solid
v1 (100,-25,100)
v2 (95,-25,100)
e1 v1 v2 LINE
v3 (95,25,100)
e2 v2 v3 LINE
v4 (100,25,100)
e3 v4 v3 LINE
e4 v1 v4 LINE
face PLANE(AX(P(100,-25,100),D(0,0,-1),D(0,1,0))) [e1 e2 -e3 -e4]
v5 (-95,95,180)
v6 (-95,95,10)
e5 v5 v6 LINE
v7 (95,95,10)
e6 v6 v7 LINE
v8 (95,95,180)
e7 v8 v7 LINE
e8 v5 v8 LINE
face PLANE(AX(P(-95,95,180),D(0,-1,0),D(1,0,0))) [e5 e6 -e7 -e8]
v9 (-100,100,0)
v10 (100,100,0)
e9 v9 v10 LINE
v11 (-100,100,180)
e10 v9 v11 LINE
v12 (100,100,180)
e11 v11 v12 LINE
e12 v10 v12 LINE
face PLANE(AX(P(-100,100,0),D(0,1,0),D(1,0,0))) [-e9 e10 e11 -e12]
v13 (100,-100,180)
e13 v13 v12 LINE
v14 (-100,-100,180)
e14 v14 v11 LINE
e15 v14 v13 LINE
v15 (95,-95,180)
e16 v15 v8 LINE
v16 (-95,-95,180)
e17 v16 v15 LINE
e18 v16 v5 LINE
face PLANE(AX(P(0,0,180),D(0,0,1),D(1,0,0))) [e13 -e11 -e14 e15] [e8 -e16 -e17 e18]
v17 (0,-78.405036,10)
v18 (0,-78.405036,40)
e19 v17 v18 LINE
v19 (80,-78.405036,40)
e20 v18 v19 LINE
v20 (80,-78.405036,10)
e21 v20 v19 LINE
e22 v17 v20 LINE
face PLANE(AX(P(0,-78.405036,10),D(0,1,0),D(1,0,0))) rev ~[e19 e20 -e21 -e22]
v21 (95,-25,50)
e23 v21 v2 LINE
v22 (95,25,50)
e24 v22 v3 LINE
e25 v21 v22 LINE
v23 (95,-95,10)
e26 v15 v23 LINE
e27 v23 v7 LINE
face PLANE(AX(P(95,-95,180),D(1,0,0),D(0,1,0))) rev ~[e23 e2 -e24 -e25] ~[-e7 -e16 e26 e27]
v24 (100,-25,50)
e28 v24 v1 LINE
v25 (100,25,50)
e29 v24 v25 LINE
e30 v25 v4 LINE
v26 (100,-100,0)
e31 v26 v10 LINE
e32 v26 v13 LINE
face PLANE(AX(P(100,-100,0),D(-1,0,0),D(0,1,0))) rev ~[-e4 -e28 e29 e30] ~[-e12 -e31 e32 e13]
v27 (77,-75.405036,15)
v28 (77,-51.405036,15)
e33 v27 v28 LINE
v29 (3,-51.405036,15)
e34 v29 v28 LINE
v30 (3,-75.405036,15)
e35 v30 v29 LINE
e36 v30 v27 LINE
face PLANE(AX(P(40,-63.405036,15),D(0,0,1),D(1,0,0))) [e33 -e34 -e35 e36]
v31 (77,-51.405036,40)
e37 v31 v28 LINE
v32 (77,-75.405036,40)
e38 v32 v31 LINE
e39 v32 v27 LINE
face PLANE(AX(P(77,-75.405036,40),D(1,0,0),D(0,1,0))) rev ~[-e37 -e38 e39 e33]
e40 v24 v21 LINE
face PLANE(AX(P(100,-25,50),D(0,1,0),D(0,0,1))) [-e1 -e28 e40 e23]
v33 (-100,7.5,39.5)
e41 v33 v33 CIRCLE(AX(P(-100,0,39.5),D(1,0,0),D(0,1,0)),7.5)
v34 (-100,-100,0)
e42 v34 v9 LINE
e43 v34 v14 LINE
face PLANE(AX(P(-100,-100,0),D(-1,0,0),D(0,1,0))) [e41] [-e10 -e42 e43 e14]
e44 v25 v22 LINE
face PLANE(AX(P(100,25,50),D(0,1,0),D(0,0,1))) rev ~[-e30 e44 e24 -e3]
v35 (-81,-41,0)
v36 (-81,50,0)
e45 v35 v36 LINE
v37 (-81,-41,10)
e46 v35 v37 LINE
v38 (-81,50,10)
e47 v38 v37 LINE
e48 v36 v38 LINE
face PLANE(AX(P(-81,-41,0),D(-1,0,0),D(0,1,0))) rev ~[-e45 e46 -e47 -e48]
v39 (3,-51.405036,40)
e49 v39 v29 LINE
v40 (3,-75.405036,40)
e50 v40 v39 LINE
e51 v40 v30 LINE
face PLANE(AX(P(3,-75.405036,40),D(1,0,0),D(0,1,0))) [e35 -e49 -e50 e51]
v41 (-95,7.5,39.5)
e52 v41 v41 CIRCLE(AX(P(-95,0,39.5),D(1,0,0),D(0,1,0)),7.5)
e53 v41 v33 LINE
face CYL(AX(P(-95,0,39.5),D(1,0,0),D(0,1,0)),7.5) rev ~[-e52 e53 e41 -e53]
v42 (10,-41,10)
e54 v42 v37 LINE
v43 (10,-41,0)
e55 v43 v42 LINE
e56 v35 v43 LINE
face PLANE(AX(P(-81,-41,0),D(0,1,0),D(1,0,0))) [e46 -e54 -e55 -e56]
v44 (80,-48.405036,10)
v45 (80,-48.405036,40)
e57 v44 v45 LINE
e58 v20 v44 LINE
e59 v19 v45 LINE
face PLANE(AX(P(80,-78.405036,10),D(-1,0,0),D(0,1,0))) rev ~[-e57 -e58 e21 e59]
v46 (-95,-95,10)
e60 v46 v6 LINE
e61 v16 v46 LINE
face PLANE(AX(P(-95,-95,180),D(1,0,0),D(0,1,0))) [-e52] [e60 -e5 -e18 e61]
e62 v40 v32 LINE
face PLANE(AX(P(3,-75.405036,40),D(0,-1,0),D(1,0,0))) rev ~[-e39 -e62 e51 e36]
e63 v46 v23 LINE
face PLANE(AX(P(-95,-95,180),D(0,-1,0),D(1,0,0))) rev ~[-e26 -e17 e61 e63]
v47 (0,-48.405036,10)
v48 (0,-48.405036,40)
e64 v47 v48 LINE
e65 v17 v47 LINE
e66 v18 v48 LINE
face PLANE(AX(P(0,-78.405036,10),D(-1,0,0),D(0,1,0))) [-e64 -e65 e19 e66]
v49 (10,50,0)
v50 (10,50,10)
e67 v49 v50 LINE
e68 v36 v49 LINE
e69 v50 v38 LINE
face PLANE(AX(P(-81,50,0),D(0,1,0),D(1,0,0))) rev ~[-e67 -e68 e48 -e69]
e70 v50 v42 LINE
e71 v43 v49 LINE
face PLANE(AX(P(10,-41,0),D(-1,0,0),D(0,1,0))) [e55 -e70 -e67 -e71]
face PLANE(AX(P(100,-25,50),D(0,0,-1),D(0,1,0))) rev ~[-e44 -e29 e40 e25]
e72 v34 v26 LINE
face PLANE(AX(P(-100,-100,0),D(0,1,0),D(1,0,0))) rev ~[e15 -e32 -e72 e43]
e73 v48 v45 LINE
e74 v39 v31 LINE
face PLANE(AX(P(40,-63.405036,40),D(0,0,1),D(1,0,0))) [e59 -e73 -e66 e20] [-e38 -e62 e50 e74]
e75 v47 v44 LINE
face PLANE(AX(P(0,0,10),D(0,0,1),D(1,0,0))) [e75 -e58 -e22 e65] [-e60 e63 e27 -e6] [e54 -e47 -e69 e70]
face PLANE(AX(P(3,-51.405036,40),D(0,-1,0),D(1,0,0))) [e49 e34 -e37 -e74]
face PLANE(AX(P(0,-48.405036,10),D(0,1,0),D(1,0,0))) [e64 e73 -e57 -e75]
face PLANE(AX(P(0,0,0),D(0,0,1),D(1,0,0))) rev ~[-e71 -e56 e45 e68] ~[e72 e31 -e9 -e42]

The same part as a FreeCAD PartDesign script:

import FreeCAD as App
import Part
import Sketcher

V = App.Vector


def add_polygon(sketch, points):
    """Adds a closed chain of lines whose ends are joined by coincident constraints."""
    first, n = sketch.GeometryCount, len(points)
    for a, b in zip(points, points[1:] + points[:1]):
        sketch.addGeometry(Part.LineSegment(App.Vector(*a, 0), App.Vector(*b, 0)), False)
    for i in range(n):
        sketch.addConstraint(Sketcher.Constraint("Coincident", first + i, 2, first + (i + 1) % n, 1))

doc = App.newDocument("Part")
body = doc.addObject("PartDesign::Body", "Body")

# Sketch on XY plane
sketch1 = body.newObject("Sketcher::SketchObject", "Sketch")
sketch1.AttachmentSupport = (doc.getObject("XY_Plane"), [""])
sketch1.MapMode = "FlatFace"
add_polygon(sketch1, [(-100, 100), (-100, -100), (100, -100), (100, 100)])  # lines 0-3
sketch1.addConstraint([
    Sketcher.Constraint("Vertical", 0),
    Sketcher.Constraint("Horizontal", 1),
    Sketcher.Constraint("Vertical", 2),
    Sketcher.Constraint("Horizontal", 3),
    Sketcher.Constraint("Symmetric", 0, 2, 2, 2, -1, 1),
    Sketcher.Constraint("Equal", 3, 0),
    Sketcher.Constraint("DistanceX", 1, 1, 1, 2, 200.0),
])
pad1 = body.newObject("PartDesign::Pad", "Pad")
pad1.Profile = sketch1
pad1.Length = 180

# Sketch on XY plane
sketch2 = body.newObject("Sketcher::SketchObject", "Sketch001")
sketch2.AttachmentSupport = (doc.getObject("XY_Plane"), [""])
sketch2.MapMode = "FlatFace"
sketch2.AttachmentOffset = App.Placement(V(0, 0, 180), App.Rotation())
add_polygon(sketch2, [(-95, 95), (-95, -95), (95, -95), (95, 95)])  # lines 0-3
sketch2.addConstraint([
    Sketcher.Constraint("Vertical", 0),
    Sketcher.Constraint("Horizontal", 1),
    Sketcher.Constraint("Vertical", 2),
    Sketcher.Constraint("Horizontal", 3),
    Sketcher.Constraint("Symmetric", 0, 2, 2, 2, -1, 1),
    Sketcher.Constraint("Equal", 3, 0),
    Sketcher.Constraint("DistanceX", 1, 1, 1, 2, 190.0),
])
pocket1 = body.newObject("PartDesign::Pocket", "Pocket")
pocket1.Profile = sketch2
pocket1.Length = 170

# Sketch on YZ plane
sketch3 = body.newObject("Sketcher::SketchObject", "Sketch002")
sketch3.AttachmentSupport = (doc.getObject("YZ_Plane"), [""])
sketch3.MapMode = "FlatFace"
sketch3.AttachmentOffset = App.Placement(V(0, 0, 100), App.Rotation())
add_polygon(sketch3, [(-25, 100), (-25, 50), (25, 50), (25, 100)])  # lines 0-3
sketch3.addConstraint([
    Sketcher.Constraint("Vertical", 0),
    Sketcher.Constraint("Horizontal", 1),
    Sketcher.Constraint("Vertical", 2),
    Sketcher.Constraint("Horizontal", 3),
    Sketcher.Constraint("Equal", 3, 0),
    Sketcher.Constraint("DistanceX", 1, 1, 1, 2, 50.0),
    Sketcher.Constraint("DistanceX", 0, 2, -1, 1, 25.0),
    Sketcher.Constraint("DistanceY", -1, 1, 0, 2, 50.0),
])
pocket2 = body.newObject("PartDesign::Pocket", "Pocket001")
pocket2.Profile = sketch3
pocket2.Length = 8

# Sketch on XY plane
sketch4 = body.newObject("Sketcher::SketchObject", "Sketch003")
sketch4.AttachmentSupport = (doc.getObject("XY_Plane"), [""])
sketch4.MapMode = "FlatFace"
sketch4.AttachmentOffset = App.Placement(V(0, 0, 10), App.Rotation())
add_polygon(sketch4, [(0, -48), (0, -78), (80, -78), (80, -48)])  # lines 0-3
sketch4.addConstraint([
    Sketcher.Constraint("Vertical", 0),
    Sketcher.Constraint("Horizontal", 1),
    Sketcher.Constraint("Vertical", 2),
    Sketcher.Constraint("Horizontal", 3),
    Sketcher.Constraint("PointOnObject", 0, 2, -2),
    Sketcher.Constraint("DistanceX", 1, 1, 1, 2, 80.0),
    Sketcher.Constraint("DistanceY", 0, 2, 0, 1, 30.0),
    Sketcher.Constraint("DistanceY", 0, 2, -1, 1, 78.405036),
])
pad2 = body.newObject("PartDesign::Pad", "Pad001")
pad2.Profile = sketch4
pad2.Length = 30

# Sketch on XY plane
sketch5 = body.newObject("Sketcher::SketchObject", "Sketch004")
sketch5.AttachmentSupport = (doc.getObject("XY_Plane"), [""])
sketch5.MapMode = "FlatFace"
sketch5.AttachmentOffset = App.Placement(V(0, 0, 40), App.Rotation())
add_polygon(sketch5, [(3, -51), (3, -75), (77, -75), (77, -51)])  # lines 0-3
sketch5.addConstraint([
    Sketcher.Constraint("Vertical", 0),
    Sketcher.Constraint("Horizontal", 1),
    Sketcher.Constraint("Vertical", 2),
    Sketcher.Constraint("Horizontal", 3),
    Sketcher.Constraint("DistanceX", 1, 1, 1, 2, 74.0),
    Sketcher.Constraint("DistanceY", 0, 2, 0, 1, 24.0),
    Sketcher.Constraint("DistanceX", -1, 1, 0, 2, 3.0),
    Sketcher.Constraint("DistanceY", 0, 2, -1, 1, 75.405036),
])
pocket3 = body.newObject("PartDesign::Pocket", "Pocket002")
pocket3.Profile = sketch5
pocket3.Length = 25

# Sketch on XY plane
sketch6 = body.newObject("Sketcher::SketchObject", "Sketch005")
sketch6.AttachmentSupport = (doc.getObject("XY_Plane"), [""])
sketch6.MapMode = "FlatFace"
add_polygon(sketch6, [(-81, 50), (-81, -41), (10, -41), (10, 50)])  # lines 0-3
sketch6.addConstraint([
    Sketcher.Constraint("Vertical", 0),
    Sketcher.Constraint("Horizontal", 1),
    Sketcher.Constraint("Vertical", 2),
    Sketcher.Constraint("Horizontal", 3),
    Sketcher.Constraint("Equal", 3, 0),
    Sketcher.Constraint("DistanceX", 1, 1, 1, 2, 91.0),
    Sketcher.Constraint("DistanceX", 0, 2, -1, 1, 81.0),
    Sketcher.Constraint("DistanceY", 0, 2, -1, 1, 41.0),
])
pocket4 = body.newObject("PartDesign::Pocket", "Pocket003")
pocket4.Profile = sketch6
pocket4.Length = 25
pocket4.Reversed = True

# Sketch on YZ plane
sketch7 = body.newObject("Sketcher::SketchObject", "Sketch006")
sketch7.AttachmentSupport = (doc.getObject("YZ_Plane"), [""])
sketch7.MapMode = "FlatFace"
sketch7.AttachmentOffset = App.Placement(V(0, 0, -95), App.Rotation())
sketch7.addGeometry(Part.Circle(V(0, 40, 0), V(0, 0, 1), 8), False)
sketch7.addConstraint([
    Sketcher.Constraint("PointOnObject", 0, 3, -2),
    Sketcher.Constraint("Diameter", 0, 15.0),
    Sketcher.Constraint("DistanceY", -1, 1, 0, 3, 39.5),
])
pocket5 = body.newObject("PartDesign::Pocket", "Pocket004")
pocket5.Profile = sketch7
pocket5.Length = 25

doc.recompute()
